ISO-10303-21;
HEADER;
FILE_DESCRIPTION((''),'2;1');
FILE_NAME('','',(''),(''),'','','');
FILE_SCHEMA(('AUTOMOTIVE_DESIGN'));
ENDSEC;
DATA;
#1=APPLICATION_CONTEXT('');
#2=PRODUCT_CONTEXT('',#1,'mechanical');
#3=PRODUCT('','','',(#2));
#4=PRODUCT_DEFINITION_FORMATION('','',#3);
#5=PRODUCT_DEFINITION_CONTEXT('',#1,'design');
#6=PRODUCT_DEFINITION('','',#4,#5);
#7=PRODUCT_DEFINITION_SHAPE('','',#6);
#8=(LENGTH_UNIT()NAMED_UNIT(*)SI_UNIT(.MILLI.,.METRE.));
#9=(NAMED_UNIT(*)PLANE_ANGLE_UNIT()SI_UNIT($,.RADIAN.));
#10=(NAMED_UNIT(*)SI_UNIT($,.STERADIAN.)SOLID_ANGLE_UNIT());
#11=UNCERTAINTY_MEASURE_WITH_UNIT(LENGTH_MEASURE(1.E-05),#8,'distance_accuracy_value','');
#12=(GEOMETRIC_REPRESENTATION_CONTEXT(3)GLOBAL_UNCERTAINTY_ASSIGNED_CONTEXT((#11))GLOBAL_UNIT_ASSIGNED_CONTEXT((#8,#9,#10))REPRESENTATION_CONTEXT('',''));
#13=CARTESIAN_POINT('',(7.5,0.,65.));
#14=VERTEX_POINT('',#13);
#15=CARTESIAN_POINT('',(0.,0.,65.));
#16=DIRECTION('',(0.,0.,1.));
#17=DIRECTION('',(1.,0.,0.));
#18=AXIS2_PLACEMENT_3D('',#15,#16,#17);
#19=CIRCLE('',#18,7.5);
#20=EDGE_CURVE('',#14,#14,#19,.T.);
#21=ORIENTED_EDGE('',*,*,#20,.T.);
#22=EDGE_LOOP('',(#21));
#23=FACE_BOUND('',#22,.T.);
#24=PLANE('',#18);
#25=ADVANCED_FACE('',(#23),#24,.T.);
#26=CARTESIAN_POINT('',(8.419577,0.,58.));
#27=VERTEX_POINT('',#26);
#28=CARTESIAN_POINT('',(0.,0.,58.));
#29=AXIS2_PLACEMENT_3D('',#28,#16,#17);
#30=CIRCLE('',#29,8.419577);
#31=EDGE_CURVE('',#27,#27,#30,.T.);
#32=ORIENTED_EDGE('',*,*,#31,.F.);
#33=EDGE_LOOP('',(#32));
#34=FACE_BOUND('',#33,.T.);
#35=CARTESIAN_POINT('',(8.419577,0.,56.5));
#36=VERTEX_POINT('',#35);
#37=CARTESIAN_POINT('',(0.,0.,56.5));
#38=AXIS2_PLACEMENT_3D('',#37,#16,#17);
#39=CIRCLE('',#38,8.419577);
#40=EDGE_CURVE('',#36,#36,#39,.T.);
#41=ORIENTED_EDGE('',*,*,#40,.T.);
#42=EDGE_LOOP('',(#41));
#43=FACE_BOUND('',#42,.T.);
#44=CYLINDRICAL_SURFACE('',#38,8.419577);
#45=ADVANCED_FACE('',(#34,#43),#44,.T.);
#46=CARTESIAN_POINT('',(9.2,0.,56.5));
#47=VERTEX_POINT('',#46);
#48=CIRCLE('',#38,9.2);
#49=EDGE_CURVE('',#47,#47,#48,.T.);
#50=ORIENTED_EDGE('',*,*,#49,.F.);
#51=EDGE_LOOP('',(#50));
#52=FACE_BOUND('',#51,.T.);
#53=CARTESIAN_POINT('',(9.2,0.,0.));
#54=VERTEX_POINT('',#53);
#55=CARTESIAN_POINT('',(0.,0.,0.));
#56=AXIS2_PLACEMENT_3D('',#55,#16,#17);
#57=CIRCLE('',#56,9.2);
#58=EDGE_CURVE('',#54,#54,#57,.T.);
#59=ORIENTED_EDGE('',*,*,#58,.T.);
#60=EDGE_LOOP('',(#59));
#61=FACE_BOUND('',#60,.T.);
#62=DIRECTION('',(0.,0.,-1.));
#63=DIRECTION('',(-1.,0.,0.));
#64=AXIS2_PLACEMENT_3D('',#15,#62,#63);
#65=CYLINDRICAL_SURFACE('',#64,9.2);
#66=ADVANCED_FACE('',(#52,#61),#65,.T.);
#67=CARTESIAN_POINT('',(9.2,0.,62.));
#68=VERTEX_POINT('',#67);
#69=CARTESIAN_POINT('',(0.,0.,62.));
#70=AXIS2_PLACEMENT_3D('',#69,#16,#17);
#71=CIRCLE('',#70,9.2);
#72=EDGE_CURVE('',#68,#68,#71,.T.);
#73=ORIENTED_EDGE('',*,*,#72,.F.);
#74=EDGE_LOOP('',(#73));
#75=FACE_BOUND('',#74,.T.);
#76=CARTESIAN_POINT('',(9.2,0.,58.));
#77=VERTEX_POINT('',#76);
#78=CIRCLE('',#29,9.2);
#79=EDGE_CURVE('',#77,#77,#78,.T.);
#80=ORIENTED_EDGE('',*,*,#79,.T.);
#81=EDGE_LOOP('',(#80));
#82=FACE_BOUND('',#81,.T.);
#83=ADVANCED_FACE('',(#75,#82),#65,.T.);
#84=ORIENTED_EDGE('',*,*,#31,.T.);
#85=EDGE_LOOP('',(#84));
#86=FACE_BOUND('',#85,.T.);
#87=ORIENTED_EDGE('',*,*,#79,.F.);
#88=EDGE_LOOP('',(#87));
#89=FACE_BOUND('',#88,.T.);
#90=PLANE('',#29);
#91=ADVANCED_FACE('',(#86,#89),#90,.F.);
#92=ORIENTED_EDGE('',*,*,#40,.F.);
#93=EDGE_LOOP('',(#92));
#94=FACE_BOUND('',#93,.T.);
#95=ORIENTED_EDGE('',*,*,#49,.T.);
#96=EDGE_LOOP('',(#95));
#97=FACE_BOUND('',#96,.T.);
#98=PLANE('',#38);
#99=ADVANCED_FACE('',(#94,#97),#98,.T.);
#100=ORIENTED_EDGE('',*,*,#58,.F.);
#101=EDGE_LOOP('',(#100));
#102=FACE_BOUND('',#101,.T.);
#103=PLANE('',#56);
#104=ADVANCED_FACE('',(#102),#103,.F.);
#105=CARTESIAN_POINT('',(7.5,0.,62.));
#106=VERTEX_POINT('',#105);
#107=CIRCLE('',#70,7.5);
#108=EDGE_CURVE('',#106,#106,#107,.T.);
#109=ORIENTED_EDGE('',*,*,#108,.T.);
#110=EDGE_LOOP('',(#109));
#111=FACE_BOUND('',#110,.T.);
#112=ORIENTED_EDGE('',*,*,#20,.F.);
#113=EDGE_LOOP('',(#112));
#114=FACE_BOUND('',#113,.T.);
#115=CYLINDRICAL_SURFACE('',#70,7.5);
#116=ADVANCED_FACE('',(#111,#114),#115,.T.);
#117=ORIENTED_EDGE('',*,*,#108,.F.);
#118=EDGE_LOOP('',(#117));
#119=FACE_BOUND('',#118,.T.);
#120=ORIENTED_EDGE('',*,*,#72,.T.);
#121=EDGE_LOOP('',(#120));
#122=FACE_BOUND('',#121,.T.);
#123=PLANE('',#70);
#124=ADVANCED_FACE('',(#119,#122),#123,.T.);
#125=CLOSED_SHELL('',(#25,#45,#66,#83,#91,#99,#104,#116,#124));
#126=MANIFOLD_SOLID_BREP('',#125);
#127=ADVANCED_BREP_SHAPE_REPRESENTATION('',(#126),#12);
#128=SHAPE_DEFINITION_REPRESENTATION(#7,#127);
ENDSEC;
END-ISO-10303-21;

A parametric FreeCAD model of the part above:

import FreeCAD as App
import Part
import Sketcher
Q = App.Units.Quantity

doc = App.newDocument("Part")
body = doc.addObject("PartDesign::Body", "Body")

# Sketch on XY plane
sketch1 = body.newObject("Sketcher::SketchObject", "Sketch")
sketch1.AttachmentSupport = (doc.getObject("XY_Plane"), [""])
sketch1.MapMode = "FlatFace"
sketch1.addGeometry(Part.Circle(App.Vector(0, 0, 0), App.Vector(0, 0, 1), 9), False)
sketch1.addConstraint(Sketcher.Constraint("Coincident", 0, 3, -1, 1))
sketch1.addConstraint(Sketcher.Constraint("Diameter", 0, Q("18.4 mm")))
pad1 = body.newObject("PartDesign::Pad", "Pad")
pad1.Profile = sketch1
pad1.Length = 65

# Sketch on XY plane
sketch2 = body.newObject("Sketcher::SketchObject", "Sketch001")
sketch2.AttachmentSupport = (doc.getObject("XY_Plane"), [""])
sketch2.MapMode = "FlatFace"
sketch2.AttachmentOffset = App.Placement(App.Vector(0, 0, 62), App.Rotation())
sketch2.addGeometry(Part.Circle(App.Vector(0, 0, 0), App.Vector(0, 0, 1), 9), False)
sketch2.addGeometry(Part.Circle(App.Vector(0, 0, 0), App.Vector(0, 0, 1), 8), False)
sketch2.addConstraint(Sketcher.Constraint("Coincident", 0, 3, -1, 1))
sketch2.addConstraint(Sketcher.Constraint("Coincident", 1, 3, -1, 1))
sketch2.addConstraint(Sketcher.Constraint("Diameter", 1, Q("15 mm")))
sketch2.addConstraint(Sketcher.Constraint("Diameter", 0, Q("18.4 mm")))
pocket1 = body.newObject("PartDesign::Pocket", "Pocket")
pocket1.Profile = sketch2
pocket1.Length = 3
pocket1.Reversed = True

# Sketch on XY plane
sketch3 = body.newObject("Sketcher::SketchObject", "Sketch002")
sketch3.AttachmentSupport = (doc.getObject("XY_Plane"), [""])
sketch3.MapMode = "FlatFace"
sketch3.AttachmentOffset = App.Placement(App.Vector(0, 0, 56.5), App.Rotation())
sketch3.addGeometry(Part.Circle(App.Vector(0, 0, 0), App.Vector(0, 0, 1), 9), False)
sketch3.addGeometry(Part.Circle(App.Vector(0, 0, 0), App.Vector(0, 0, 1), 8), False)
sketch3.addConstraint(Sketcher.Constraint("Coincident", 0, 3, -1, 1))
sketch3.addConstraint(Sketcher.Constraint("Coincident", 1, 3, -1, 1))
sketch3.addConstraint(Sketcher.Constraint("Diameter", 0, Q("18.4 mm")))
sketch3.addConstraint(Sketcher.Constraint("Diameter", 1, Q("16.839155 mm")))
pocket2 = body.newObject("PartDesign::Pocket", "Pocket001")
pocket2.Profile = sketch3
pocket2.Length = 1.5
pocket2.Reversed = True

doc.recompute()
